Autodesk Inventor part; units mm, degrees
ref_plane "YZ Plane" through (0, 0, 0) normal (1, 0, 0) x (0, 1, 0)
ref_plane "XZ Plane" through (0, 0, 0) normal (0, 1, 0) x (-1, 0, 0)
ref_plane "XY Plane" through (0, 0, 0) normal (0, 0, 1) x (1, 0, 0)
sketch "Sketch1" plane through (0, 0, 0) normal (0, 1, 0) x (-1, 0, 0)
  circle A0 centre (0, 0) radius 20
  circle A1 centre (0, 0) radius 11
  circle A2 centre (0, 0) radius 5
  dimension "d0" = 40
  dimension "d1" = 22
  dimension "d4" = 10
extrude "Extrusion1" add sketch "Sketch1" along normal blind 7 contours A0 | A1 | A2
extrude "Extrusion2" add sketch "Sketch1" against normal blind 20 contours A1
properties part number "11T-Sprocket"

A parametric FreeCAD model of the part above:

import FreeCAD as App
import Part
import Sketcher

doc = App.newDocument("Part")
body = doc.addObject("PartDesign::Body", "Body")

sketch1 = doc.addObject("Sketcher::SketchObject", "Sketch")
body.addObject(sketch1)
sketch1.AttachmentSupport = (doc.XZ_Plane, [""])
sketch1.MapMode = "FlatFace"
sketch1.addGeometry(Part.Circle(App.Vector(0, 0, 0), App.Vector(0, 0, 1), 20), False)
sketch1.addConstraint(Sketcher.Constraint("Coincident", 0, 3, -1, 1))
sketch1.addConstraint(Sketcher.Constraint("Diameter", 0, 40.0))
pad1 = doc.addObject("PartDesign::Pad", "Pad")
body.addObject(pad1)
pad1.Profile = sketch1
pad1.Length = 7
pad1.Reversed = True

sketch2 = doc.addObject("Sketcher::SketchObject", "Sketch001")
body.addObject(sketch2)
sketch2.AttachmentSupport = (doc.XZ_Plane, [""])
sketch2.MapMode = "FlatFace"
sketch2.addGeometry(Part.Circle(App.Vector(0, 0, 0), App.Vector(0, 0, 1), 11), False)
sketch2.addGeometry(Part.Circle(App.Vector(0, 0, 0), App.Vector(0, 0, 1), 5), False)
sketch2.addConstraint(Sketcher.Constraint("Coincident", 0, 3, -1, 1))
sketch2.addConstraint(Sketcher.Constraint("Coincident", 1, 3, -1, 1))
sketch2.addConstraint(Sketcher.Constraint("Diameter", 0, 22.0))
sketch2.addConstraint(Sketcher.Constraint("Diameter", 1, 10.0))
pad2 = doc.addObject("PartDesign::Pad", "Pad001")
body.addObject(pad2)
pad2.Profile = sketch2
pad2.Length = 20

doc.recompute()
